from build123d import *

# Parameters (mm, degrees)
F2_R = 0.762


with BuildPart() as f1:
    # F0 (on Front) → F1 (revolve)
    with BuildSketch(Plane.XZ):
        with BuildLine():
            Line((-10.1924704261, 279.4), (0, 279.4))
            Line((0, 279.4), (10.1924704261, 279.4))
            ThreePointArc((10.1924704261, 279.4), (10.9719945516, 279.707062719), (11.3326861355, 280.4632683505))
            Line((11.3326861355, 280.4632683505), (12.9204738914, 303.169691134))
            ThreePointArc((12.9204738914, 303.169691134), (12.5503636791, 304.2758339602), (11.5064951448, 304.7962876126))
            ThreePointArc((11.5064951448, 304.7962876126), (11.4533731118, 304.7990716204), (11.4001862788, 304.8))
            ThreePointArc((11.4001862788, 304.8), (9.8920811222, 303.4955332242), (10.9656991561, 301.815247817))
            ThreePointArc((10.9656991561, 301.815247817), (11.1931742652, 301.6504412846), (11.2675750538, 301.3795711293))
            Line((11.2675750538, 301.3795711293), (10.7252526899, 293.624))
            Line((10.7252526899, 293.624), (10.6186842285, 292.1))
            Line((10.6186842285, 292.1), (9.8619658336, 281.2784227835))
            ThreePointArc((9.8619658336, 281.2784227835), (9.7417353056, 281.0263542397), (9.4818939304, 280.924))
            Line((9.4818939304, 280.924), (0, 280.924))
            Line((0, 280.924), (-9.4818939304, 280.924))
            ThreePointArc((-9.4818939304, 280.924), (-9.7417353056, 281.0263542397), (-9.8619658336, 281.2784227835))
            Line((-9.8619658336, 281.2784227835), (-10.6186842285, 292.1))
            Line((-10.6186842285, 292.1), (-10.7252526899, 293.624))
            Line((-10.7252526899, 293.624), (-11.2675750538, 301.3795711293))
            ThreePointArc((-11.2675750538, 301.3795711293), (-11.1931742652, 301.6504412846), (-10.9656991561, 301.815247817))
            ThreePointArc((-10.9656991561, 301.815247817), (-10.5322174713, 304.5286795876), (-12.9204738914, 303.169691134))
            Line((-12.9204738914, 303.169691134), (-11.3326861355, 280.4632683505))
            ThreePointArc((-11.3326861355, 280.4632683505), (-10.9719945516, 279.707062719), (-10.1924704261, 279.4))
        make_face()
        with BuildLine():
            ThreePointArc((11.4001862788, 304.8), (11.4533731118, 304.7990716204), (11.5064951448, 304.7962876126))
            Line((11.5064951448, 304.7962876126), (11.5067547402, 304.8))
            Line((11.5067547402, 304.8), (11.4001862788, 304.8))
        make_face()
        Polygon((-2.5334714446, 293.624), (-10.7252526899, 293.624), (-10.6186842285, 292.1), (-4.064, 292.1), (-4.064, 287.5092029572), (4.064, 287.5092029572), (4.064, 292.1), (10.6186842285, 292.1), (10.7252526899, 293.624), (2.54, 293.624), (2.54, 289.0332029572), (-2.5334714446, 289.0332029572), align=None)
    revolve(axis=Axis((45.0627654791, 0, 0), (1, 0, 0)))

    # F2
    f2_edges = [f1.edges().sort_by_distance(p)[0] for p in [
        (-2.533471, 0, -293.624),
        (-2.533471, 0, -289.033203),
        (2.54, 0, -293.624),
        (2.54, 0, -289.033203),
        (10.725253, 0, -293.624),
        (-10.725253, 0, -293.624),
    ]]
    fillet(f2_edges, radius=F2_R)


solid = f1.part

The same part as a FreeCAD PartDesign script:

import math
import FreeCAD as App
import Part
import Sketcher
from FreeCAD import Vector
Q = App.Units.Quantity


def edges_at(feature, points):
    """Names of the edges that pass closest to the given points."""
    edges = feature.Shape.Edges
    near = lambda p: min(range(len(edges)), key=lambda i: edges[i].distToShape(Part.Vertex(*p))[0])
    return sorted({f"Edge{near(p) + 1}" for p in points})

doc = App.newDocument("Part")
params = doc.addObject("Spreadsheet::Sheet", "Params")
for row, (alias, value) in enumerate([
    ("sketch1_radius", "0.06 in"),
    ("sketch1_radius2", "0.045 in"),
    ("sketch1_radius3", "0.015 in"),
    ("sketch1_width", "0.32 in"),
    ("revolution_angle", "360 deg"),
    ("fillet_radius", "0.03 in"),
], start=1):
    params.set(f"A{row}", alias)
    params.set(f"B{row}", "=" + value)
    params.setAlias(f"B{row}", alias)

body = doc.addObject("PartDesign::Body", "Body")

sketch1 = body.newObject("Sketcher::SketchObject", "Sketch")
sketch1.AttachmentSupport = (doc.getObject("XZ_Plane"), [""])
sketch1.MapMode = "FlatFace"
sketch1.addGeometry([
    Part.LineSegment(Vector(-10.1925, 279.4, 0), Vector(10.1925, 279.4, 0)),
    Part.ArcOfCircle(Part.Circle(Vector(10.1925, 280.543, 0), Vector(0, 0, 1), 1.143), math.radians(-90), math.radians(-4)),
    Part.LineSegment(Vector(11.3327, 280.4633, 0), Vector(12.9205, 303.1697, 0)),
    Part.ArcOfCircle(Part.Circle(Vector(11.4002, 303.276, 0), Vector(0, 0, 1), 1.524), math.radians(-4), math.radians(86)),
    Part.LineSegment(Vector(11.5065, 304.7963, 0), Vector(11.5068, 304.8, 0)),
    Part.LineSegment(Vector(11.5068, 304.8, 0), Vector(11.4002, 304.8, 0)),
    Part.ArcOfCircle(Part.Circle(Vector(11.4002, 303.276, 0), Vector(0, 0, 1), 1.524), math.radians(90), math.radians(253)),
    Part.ArcOfCircle(Part.Circle(Vector(10.8449, 301.4091, 0), Vector(0, 0, 1), 0.4237), math.radians(-4), math.radians(73)),
    Part.LineSegment(Vector(11.2676, 301.3796, 0), Vector(10.7253, 293.624, 0)),
    Part.LineSegment(Vector(10.7253, 293.624, 0), Vector(2.54, 293.624, 0)),
    Part.LineSegment(Vector(2.54, 293.624, 0), Vector(2.54, 289.0332, 0)),
    Part.LineSegment(Vector(2.54, 289.0332, 0), Vector(-2.5335, 289.0332, 0)),
    Part.LineSegment(Vector(-2.5335, 289.0332, 0), Vector(-2.5335, 293.624, 0)),
    Part.LineSegment(Vector(-2.5335, 293.624, 0), Vector(-10.7253, 293.624, 0)),
    Part.LineSegment(Vector(-10.7253, 293.624, 0), Vector(-11.2676, 301.3796, 0)),
    Part.ArcOfCircle(Part.Circle(Vector(-10.8449, 301.4091, 0), Vector(0, 0, 1), 0.4237), math.radians(107), math.radians(184)),
    Part.ArcOfCircle(Part.Circle(Vector(-11.4002, 303.276, 0), Vector(0, 0, 1), 1.524), math.radians(-73), math.radians(184)),
    Part.LineSegment(Vector(-12.9205, 303.1697, 0), Vector(-11.3327, 280.4633, 0)),
    Part.ArcOfCircle(Part.Circle(Vector(-10.1925, 280.543, 0), Vector(0, 0, 1), 1.143), math.radians(-176), math.radians(-90)),
    Part.LineSegment(Vector(10.6187, 292.1, 0), Vector(9.862, 281.2784, 0)),
    Part.ArcOfCircle(Part.Circle(Vector(9.4819, 281.305, 0), Vector(0, 0, 1), 0.381), math.radians(-90), math.radians(-4)),
    Part.LineSegment(Vector(9.4819, 280.924, 0), Vector(-9.4819, 280.924, 0)),
    Part.ArcOfCircle(Part.Circle(Vector(-9.4819, 281.305, 0), Vector(0, 0, 1), 0.381), math.radians(-176), math.radians(-90)),
    Part.LineSegment(Vector(-9.862, 281.2784, 0), Vector(-10.6187, 292.1, 0)),
    Part.LineSegment(Vector(-10.6187, 292.1, 0), Vector(-4.064, 292.1, 0)),
    Part.LineSegment(Vector(-4.064, 292.1, 0), Vector(-4.064, 287.5092, 0)),
    Part.LineSegment(Vector(-4.064, 287.5092, 0), Vector(4.064, 287.5092, 0)),
    Part.LineSegment(Vector(4.064, 287.5092, 0), Vector(4.064, 292.1, 0)),
    Part.LineSegment(Vector(4.064, 292.1, 0), Vector(10.6187, 292.1, 0)),
], False)
sketch1.addConstraint([
    Sketcher.Constraint("Tangent", 0, 2, 1, 1),
    Sketcher.Constraint("Tangent", 1, 2, 2, 1),
    Sketcher.Constraint("Tangent", 2, 2, 3, 1),
    Sketcher.Constraint("Coincident", 3, 2, 4, 1),
    Sketcher.Constraint("Coincident", 4, 2, 5, 1),
    Sketcher.Constraint("Tangent", 5, 2, 6, 1),
    Sketcher.Constraint("Tangent", 6, 2, 7, 2),
    Sketcher.Constraint("Tangent", 7, 1, 8, 1),
    Sketcher.Constraint("Coincident", 8, 2, 9, 1),
    Sketcher.Constraint("Coincident", 9, 2, 10, 1),
    Sketcher.Constraint("Coincident", 10, 2, 11, 1),
    Sketcher.Constraint("Coincident", 11, 2, 12, 1),
    Sketcher.Constraint("Coincident", 12, 2, 13, 1),
    Sketcher.Constraint("Coincident", 13, 2, 14, 1),
    Sketcher.Constraint("Tangent", 14, 2, 15, 2),
    Sketcher.Constraint("Tangent", 15, 1, 16, 1),
    Sketcher.Constraint("Tangent", 16, 2, 17, 1),
    Sketcher.Constraint("Tangent", 17, 2, 18, 1),
    Sketcher.Constraint("Tangent", 18, 2, 0, 1),
    Sketcher.Constraint("Tangent", 19, 2, 20, 2),
    Sketcher.Constraint("Tangent", 20, 1, 21, 1),
    Sketcher.Constraint("Tangent", 21, 2, 22, 2),
    Sketcher.Constraint("Tangent", 22, 1, 23, 1),
    Sketcher.Constraint("Coincident", 23, 2, 24, 1),
    Sketcher.Constraint("Coincident", 24, 2, 25, 1),
    Sketcher.Constraint("Coincident", 25, 2, 26, 1),
    Sketcher.Constraint("Coincident", 26, 2, 27, 1),
    Sketcher.Constraint("Coincident", 27, 2, 28, 1),
    Sketcher.Constraint("Coincident", 28, 2, 19, 1),
    Sketcher.Constraint("Horizontal", 0),
    Sketcher.Constraint("Horizontal", 5),
    Sketcher.Constraint("Horizontal", 9),
    Sketcher.Constraint("Vertical", 10),
    Sketcher.Constraint("Horizontal", 11),
    Sketcher.Constraint("Vertical", 12),
    Sketcher.Constraint("Horizontal", 13),
    Sketcher.Constraint("Horizontal", 21),
    Sketcher.Constraint("Horizontal", 24),
    Sketcher.Constraint("Vertical", 25),
    Sketcher.Constraint("Horizontal", 26),
    Sketcher.Constraint("Vertical", 27),
    Sketcher.Constraint("Horizontal", 28),
    Sketcher.Constraint("Coincident", 6, 3, 3, 3),
    Sketcher.Constraint("Equal", 3, 6),
    Sketcher.Constraint("Equal", 7, 15),
    Sketcher.Constraint("Equal", 6, 16),
    Sketcher.Constraint("Equal", 1, 18),
    Sketcher.Constraint("Equal", 20, 22),
    Sketcher.Constraint("Symmetric", 7, 3, 15, 3, -2),
    Sketcher.Constraint("Symmetric", 8, 2, 13, 2, -2),
    Sketcher.Constraint("Symmetric", 2, 2, 16, 2, -2),
    Sketcher.Constraint("Symmetric", 19, 2, 22, 1, -2),
    Sketcher.Constraint("Symmetric", 24, 2, 27, 2, -2),
    Sketcher.Constraint("Parallel", 2, 4),
    Sketcher.Constraint("Parallel", 2, 8),
    Sketcher.Constraint("Parallel", 8, 19),
    Sketcher.Constraint("Equal", 12, 25),
    Sketcher.Constraint("Radius", 3, Q("0.06 in")),
    Sketcher.Constraint("DistanceY", -1, 1, 0, 2, Q("11 in")),
    Sketcher.Constraint("DistanceY", -1, 1, 4, 2, Q("12 in")),
    Sketcher.Constraint("Angle", 2, Q("86 deg")),
    Sketcher.Constraint("Radius", 1, Q("0.045 in")),
    Sketcher.Constraint("Radius", 20, Q("0.015 in")),
    Sketcher.Constraint("DistanceX", 26, 1, 26, 2, Q("0.32 in")),
    Sketcher.Constraint("DistanceX", -1, 1, 9, 2, Q("0.1 in")),
    Sketcher.Constraint("DistanceY", -1, 1, 23, 2, Q("11.5 in")),
    Sketcher.Constraint("DistanceY", -1, 1, 8, 2, Q("11.56 in")),
    Sketcher.Constraint("DistanceY", -1, 1, 20, 1, Q("11.06 in")),
    Sketcher.Constraint("Radius", 7, Q("0.423705 mm")),
    Sketcher.Constraint("DistanceX", 0, 1, 0, 2, Q("20.384941 mm")),
    Sketcher.Constraint("DistanceX", 5, 2, 5, 1, Q("0.106568 mm")),
    Sketcher.Constraint("DistanceX", 11, 2, 11, 1, Q("5.073471 mm")),
    Sketcher.Constraint("DistanceX", 13, 2, 13, 1, Q("8.191781 mm")),
    Sketcher.Constraint("DistanceX", 21, 2, 21, 1, Q("18.963788 mm")),
    Sketcher.Constraint("DistanceY", 10, 2, 10, 1, Q("4.590797 mm")),
])
sketch1.setExpression("Constraints[57]", "Params.sketch1_radius")
sketch1.setExpression("Constraints[61]", "Params.sketch1_radius2")
sketch1.setExpression("Constraints[62]", "Params.sketch1_radius3")
sketch1.setExpression("Constraints[63]", "Params.sketch1_width")
revolution = body.newObject("PartDesign::Revolution", "Revolution")
revolution.Profile = sketch1
revolution.ReferenceAxis = (sketch1, ["H_Axis"])
revolution.setExpression("Angle", "Params.revolution_angle")
doc.recompute()

fillet = body.newObject("PartDesign::Fillet", "Fillet")
fillet.Base = (revolution, edges_at(revolution, [
    (-2.533, 0, -293.624),
    (-2.533, 0, -289.033),
    (2.54, 0, -293.624),
    (2.54, 0, -289.033),
    (10.725, 0, -293.624),
    (-10.725, 0, -293.624),
]))
fillet.setExpression("Radius", "Params.fillet_radius")

doc.recompute()
